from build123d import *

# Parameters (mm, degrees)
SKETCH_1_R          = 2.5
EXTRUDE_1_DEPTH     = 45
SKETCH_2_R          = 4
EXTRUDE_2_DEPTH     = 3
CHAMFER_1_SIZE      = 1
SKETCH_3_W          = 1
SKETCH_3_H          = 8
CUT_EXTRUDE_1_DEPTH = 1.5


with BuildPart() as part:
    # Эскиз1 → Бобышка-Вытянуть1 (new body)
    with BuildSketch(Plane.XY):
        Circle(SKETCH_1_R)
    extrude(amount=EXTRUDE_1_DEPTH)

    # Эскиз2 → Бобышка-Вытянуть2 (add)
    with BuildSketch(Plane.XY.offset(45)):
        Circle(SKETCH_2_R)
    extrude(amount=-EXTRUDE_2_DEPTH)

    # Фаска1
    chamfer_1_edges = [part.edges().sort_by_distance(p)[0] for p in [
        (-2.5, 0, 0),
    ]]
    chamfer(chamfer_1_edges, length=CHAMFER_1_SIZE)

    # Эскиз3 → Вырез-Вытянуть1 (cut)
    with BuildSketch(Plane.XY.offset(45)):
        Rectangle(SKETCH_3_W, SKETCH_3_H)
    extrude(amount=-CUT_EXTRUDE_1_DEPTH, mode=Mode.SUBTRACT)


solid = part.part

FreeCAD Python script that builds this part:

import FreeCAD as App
import Part
import Sketcher


def edges_at(feature, points):
    """Names of the edges that pass closest to the given points."""
    edges = feature.Shape.Edges
    near = lambda p: min(range(len(edges)), key=lambda i: edges[i].distToShape(Part.Vertex(*p))[0])
    return sorted({f"Edge{near(p) + 1}" for p in points})


def add_polygon(sketch, points):
    """Adds a closed chain of lines whose ends are joined by coincident constraints."""
    first, n = sketch.GeometryCount, len(points)
    for a, b in zip(points, points[1:] + points[:1]):
        sketch.addGeometry(Part.LineSegment(App.Vector(*a, 0), App.Vector(*b, 0)), False)
    for i in range(n):
        sketch.addConstraint(Sketcher.Constraint("Coincident", first + i, 2, first + (i + 1) % n, 1))

doc = App.newDocument("Part")
params = doc.addObject("Spreadsheet::Sheet", "Params")
for row, (alias, value) in enumerate([
    ("sketch1_diameter", "5 mm"),
    ("pad1_length", "45 mm"),
    ("sketch2_diameter", "8 mm"),
    ("pad2_length", "3 mm"),
    ("chamfer_size", "1 mm"),
    ("sketch3_width", "1 mm"),
    ("sketch3_height", "8 mm"),
    ("pocket1_length", "1.5 mm"),
], start=1):
    params.set(f"A{row}", alias)
    params.set(f"B{row}", "=" + value)
    params.setAlias(f"B{row}", alias)

body = doc.addObject("PartDesign::Body", "Body")

sketch1 = body.newObject("Sketcher::SketchObject", "Sketch")
sketch1.AttachmentSupport = (doc.getObject("XY_Plane"), [""])
sketch1.MapMode = "FlatFace"
sketch1.addGeometry(Part.Circle(App.Vector(0, 0, 0), App.Vector(0, 0, 1), 2.5), False)
sketch1.addConstraint([
    Sketcher.Constraint("Coincident", 0, 3, -1, 1),
    Sketcher.Constraint("Diameter", 0, 5.0),
])
sketch1.setExpression("Constraints[1]", "Params.sketch1_diameter")
pad1 = body.newObject("PartDesign::Pad", "Pad")
pad1.Profile = sketch1
pad1.setExpression("Length", "Params.pad1_length")

sketch2 = body.newObject("Sketcher::SketchObject", "Sketch001")
sketch2.AttachmentSupport = (doc.getObject("XY_Plane"), [""])
sketch2.MapMode = "FlatFace"
sketch2.AttachmentOffset = App.Placement(App.Vector(0, 0, 45), App.Rotation())
sketch2.addGeometry(Part.Circle(App.Vector(0, 0, 0), App.Vector(0, 0, 1), 4), False)
sketch2.addConstraint([
    Sketcher.Constraint("Coincident", 0, 3, -1, 1),
    Sketcher.Constraint("Diameter", 0, 8.0),
])
sketch2.setExpression("Constraints[1]", "Params.sketch2_diameter")
pad2 = body.newObject("PartDesign::Pad", "Pad001")
pad2.Profile = sketch2
pad2.setExpression("Length", "Params.pad2_length")
pad2.Reversed = True
doc.recompute()

chamfer = body.newObject("PartDesign::Chamfer", "Chamfer")
chamfer.Base = (pad2, edges_at(pad2, [(-2.5, 0, 0)]))
chamfer.setExpression("Size", "Params.chamfer_size")

sketch3 = body.newObject("Sketcher::SketchObject", "Sketch002")
sketch3.AttachmentSupport = (doc.getObject("XY_Plane"), [""])
sketch3.MapMode = "FlatFace"
sketch3.AttachmentOffset = App.Placement(App.Vector(0, 0, 45), App.Rotation())
add_polygon(sketch3, [(-0.5, 4), (-0.5, -4), (0.5, -4), (0.5, 4)])
sketch3.addConstraint([
    Sketcher.Constraint("Vertical", 0),
    Sketcher.Constraint("Horizontal", 1),
    Sketcher.Constraint("Vertical", 2),
    Sketcher.Constraint("Horizontal", 3),
    Sketcher.Constraint("Symmetric", 0, 2, 2, 2, -1, 1),
    Sketcher.Constraint("DistanceX", 1, 1, 1, 2, 1.0),
    Sketcher.Constraint("DistanceY", 0, 2, 0, 1, 8.0),
])
sketch3.setExpression("Constraints[9]", "Params.sketch3_width")
sketch3.setExpression("Constraints[10]", "Params.sketch3_height")
pocket1 = body.newObject("PartDesign::Pocket", "Pocket")
pocket1.Profile = sketch3
pocket1.setExpression("Length", "Params.pocket1_length")

doc.recompute()
